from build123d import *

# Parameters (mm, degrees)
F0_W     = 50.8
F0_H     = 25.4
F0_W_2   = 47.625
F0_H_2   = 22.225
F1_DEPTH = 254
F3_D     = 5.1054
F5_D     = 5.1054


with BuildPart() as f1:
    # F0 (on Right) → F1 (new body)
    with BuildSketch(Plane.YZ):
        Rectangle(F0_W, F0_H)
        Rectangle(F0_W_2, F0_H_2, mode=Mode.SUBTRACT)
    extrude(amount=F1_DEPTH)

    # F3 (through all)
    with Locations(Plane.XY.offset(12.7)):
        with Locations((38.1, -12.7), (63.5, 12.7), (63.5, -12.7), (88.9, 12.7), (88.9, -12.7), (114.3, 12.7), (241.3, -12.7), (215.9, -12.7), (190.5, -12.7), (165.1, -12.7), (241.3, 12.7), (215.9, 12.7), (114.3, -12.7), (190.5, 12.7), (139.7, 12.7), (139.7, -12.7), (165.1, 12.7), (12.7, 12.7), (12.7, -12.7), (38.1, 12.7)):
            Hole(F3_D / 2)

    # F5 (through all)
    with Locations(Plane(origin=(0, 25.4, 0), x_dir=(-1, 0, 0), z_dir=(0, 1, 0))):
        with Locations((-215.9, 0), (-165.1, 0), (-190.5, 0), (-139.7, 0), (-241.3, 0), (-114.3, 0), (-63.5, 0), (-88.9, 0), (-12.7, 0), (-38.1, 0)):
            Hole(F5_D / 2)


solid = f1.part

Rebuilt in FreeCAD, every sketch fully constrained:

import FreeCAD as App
import Part
import Sketcher
from FreeCAD import Vector
Q = App.Units.Quantity

doc = App.newDocument("Part")
body = doc.addObject("PartDesign::Body", "Body")

sketch1 = doc.addObject("Sketcher::SketchObject", "Sketch")
body.addObject(sketch1)
sketch1.AttachmentSupport = (doc.YZ_Plane, [""])
sketch1.MapMode = "FlatFace"
sketch1.addGeometry(Part.LineSegment(Vector(-25, 13, 0), Vector(-25, -13, 0)), False)
sketch1.addGeometry(Part.LineSegment(Vector(-25, -13, 0), Vector(25, -13, 0)), False)
sketch1.addGeometry(Part.LineSegment(Vector(25, -13, 0), Vector(25, 13, 0)), False)
sketch1.addGeometry(Part.LineSegment(Vector(25, 13, 0), Vector(-25, 13, 0)), False)
sketch1.addGeometry(Part.LineSegment(Vector(24, -11, 0), Vector(-24, -11, 0)), False)
sketch1.addGeometry(Part.LineSegment(Vector(-24, -11, 0), Vector(-24, 11, 0)), False)
sketch1.addGeometry(Part.LineSegment(Vector(-24, 11, 0), Vector(24, 11, 0)), False)
sketch1.addGeometry(Part.LineSegment(Vector(24, 11, 0), Vector(24, -11, 0)), False)
sketch1.addConstraint(Sketcher.Constraint("Coincident", 0, 2, 1, 1))
sketch1.addConstraint(Sketcher.Constraint("Coincident", 1, 2, 2, 1))
sketch1.addConstraint(Sketcher.Constraint("Coincident", 2, 2, 3, 1))
sketch1.addConstraint(Sketcher.Constraint("Coincident", 3, 2, 0, 1))
sketch1.addConstraint(Sketcher.Constraint("Coincident", 4, 2, 5, 1))
sketch1.addConstraint(Sketcher.Constraint("Coincident", 5, 2, 6, 1))
sketch1.addConstraint(Sketcher.Constraint("Coincident", 6, 2, 7, 1))
sketch1.addConstraint(Sketcher.Constraint("Coincident", 7, 2, 4, 1))
sketch1.addConstraint(Sketcher.Constraint("Vertical", 0))
sketch1.addConstraint(Sketcher.Constraint("Horizontal", 1))
sketch1.addConstraint(Sketcher.Constraint("Vertical", 2))
sketch1.addConstraint(Sketcher.Constraint("Horizontal", 3))
sketch1.addConstraint(Sketcher.Constraint("Horizontal", 4))
sketch1.addConstraint(Sketcher.Constraint("Vertical", 5))
sketch1.addConstraint(Sketcher.Constraint("Horizontal", 6))
sketch1.addConstraint(Sketcher.Constraint("Vertical", 7))
sketch1.addConstraint(Sketcher.Constraint("Symmetric", 0, 2, 2, 2, -1, 1))
sketch1.addConstraint(Sketcher.Constraint("Symmetric", 4, 2, 6, 2, -1, 1))
sketch1.addConstraint(Sketcher.Constraint("DistanceX", 1, 1, 1, 2, Q("2 in")))
sketch1.addConstraint(Sketcher.Constraint("DistanceY", 0, 2, 0, 1, Q("1 in")))
sketch1.addConstraint(Sketcher.Constraint("DistanceX", 4, 2, 4, 1, Q("1.875 in")))
sketch1.addConstraint(Sketcher.Constraint("DistanceY", 5, 1, 5, 2, Q("0.875 in")))
pad1 = doc.addObject("PartDesign::Pad", "Pad")
body.addObject(pad1)
pad1.Profile = sketch1
pad1.Length = Q("10 in")

sketch2 = doc.addObject("Sketcher::SketchObject", "Sketch001")
body.addObject(sketch2)
sketch2.AttachmentSupport = (doc.XY_Plane, [""])
sketch2.MapMode = "FlatFace"
sketch2.AttachmentOffset = App.Placement(Vector(0, 0, 0.5 * 25.4), App.Rotation())
sketch2.addGeometry(Part.Circle(Vector(38.1, -12.7, 0), Vector(0, 0, 1), 2.6), False)
sketch2.addGeometry(Part.Circle(Vector(63.5, 12.7, 0), Vector(0, 0, 1), 2.6), False)
sketch2.addGeometry(Part.Circle(Vector(63.5, -12.7, 0), Vector(0, 0, 1), 2.6), False)
sketch2.addGeometry(Part.Circle(Vector(88.9, 12.7, 0), Vector(0, 0, 1), 2.6), False)
sketch2.addGeometry(Part.Circle(Vector(88.9, -12.7, 0), Vector(0, 0, 1), 2.6), False)
sketch2.addGeometry(Part.Circle(Vector(114.3, 12.7, 0), Vector(0, 0, 1), 2.6), False)
sketch2.addGeometry(Part.Circle(Vector(241.3, -12.7, 0), Vector(0, 0, 1), 2.6), False)
sketch2.addGeometry(Part.Circle(Vector(215.9, -12.7, 0), Vector(0, 0, 1), 2.6), False)
sketch2.addGeometry(Part.Circle(Vector(190.5, -12.7, 0), Vector(0, 0, 1), 2.6), False)
sketch2.addGeometry(Part.Circle(Vector(165.1, -12.7, 0), Vector(0, 0, 1), 2.6), False)
sketch2.addGeometry(Part.Circle(Vector(241.3, 12.7, 0), Vector(0, 0, 1), 2.6), False)
sketch2.addGeometry(Part.Circle(Vector(215.9, 12.7, 0), Vector(0, 0, 1), 2.6), False)
sketch2.addGeometry(Part.Circle(Vector(114.3, -12.7, 0), Vector(0, 0, 1), 2.6), False)
sketch2.addGeometry(Part.Circle(Vector(190.5, 12.7, 0), Vector(0, 0, 1), 2.6), False)
sketch2.addGeometry(Part.Circle(Vector(139.7, 12.7, 0), Vector(0, 0, 1), 2.6), False)
sketch2.addGeometry(Part.Circle(Vector(139.7, -12.7, 0), Vector(0, 0, 1), 2.6), False)
sketch2.addGeometry(Part.Circle(Vector(165.1, 12.7, 0), Vector(0, 0, 1), 2.6), False)
sketch2.addGeometry(Part.Circle(Vector(12.7, 12.7, 0), Vector(0, 0, 1), 2.6), False)
sketch2.addGeometry(Part.Circle(Vector(12.7, -12.7, 0), Vector(0, 0, 1), 2.6), False)
sketch2.addGeometry(Part.Circle(Vector(38.1, 12.7, 0), Vector(0, 0, 1), 2.6), False)
sketch2.addConstraint(Sketcher.Constraint("Equal", 0, 1))
sketch2.addConstraint(Sketcher.Constraint("Equal", 1, 2))
sketch2.addConstraint(Sketcher.Constraint("Equal", 2, 3))
sketch2.addConstraint(Sketcher.Constraint("Equal", 3, 4))
sketch2.addConstraint(Sketcher.Constraint("Equal", 4, 5))
sketch2.addConstraint(Sketcher.Constraint("Equal", 5, 6))
sketch2.addConstraint(Sketcher.Constraint("Equal", 6, 7))
sketch2.addConstraint(Sketcher.Constraint("Equal", 7, 8))
sketch2.addConstraint(Sketcher.Constraint("Equal", 8, 9))
sketch2.addConstraint(Sketcher.Constraint("Equal", 9, 10))
sketch2.addConstraint(Sketcher.Constraint("Equal", 10, 11))
sketch2.addConstraint(Sketcher.Constraint("Equal", 11, 12))
sketch2.addConstraint(Sketcher.Constraint("Equal", 12, 13))
sketch2.addConstraint(Sketcher.Constraint("Equal", 13, 14))
sketch2.addConstraint(Sketcher.Constraint("Equal", 14, 15))
sketch2.addConstraint(Sketcher.Constraint("Equal", 15, 16))
sketch2.addConstraint(Sketcher.Constraint("Equal", 16, 17))
sketch2.addConstraint(Sketcher.Constraint("Equal", 17, 18))
sketch2.addConstraint(Sketcher.Constraint("Equal", 18, 19))
sketch2.addConstraint(Sketcher.Constraint("Symmetric", 1, 3, 2, 3, -1))
sketch2.addConstraint(Sketcher.Constraint("Symmetric", 3, 3, 4, 3, -1))
sketch2.addConstraint(Sketcher.Constraint("Symmetric", 6, 3, 10, 3, -1))
sketch2.addConstraint(Sketcher.Constraint("Symmetric", 7, 3, 11, 3, -1))
sketch2.addConstraint(Sketcher.Constraint("Symmetric", 5, 3, 12, 3, -1))
sketch2.addConstraint(Sketcher.Constraint("Symmetric", 8, 3, 13, 3, -1))
sketch2.addConstraint(Sketcher.Constraint("Symmetric", 14, 3, 15, 3, -1))
sketch2.addConstraint(Sketcher.Constraint("Symmetric", 9, 3, 16, 3, -1))
sketch2.addConstraint(Sketcher.Constraint("Symmetric", 17, 3, 18, 3, -1))
sketch2.addConstraint(Sketcher.Constraint("Symmetric", 0, 3, 19, 3, -1))
sketch2.addConstraint(Sketcher.Constraint("Horizontal", 0, 3, 2, 3))
sketch2.addConstraint(Sketcher.Constraint("Horizontal", 1, 3, 3, 3))
sketch2.addConstraint(Sketcher.Constraint("Horizontal", 3, 3, 5, 3))
sketch2.addConstraint(Sketcher.Constraint("Horizontal", 4, 3, 6, 3))
sketch2.addConstraint(Sketcher.Constraint("Horizontal", 6, 3, 7, 3))
sketch2.addConstraint(Sketcher.Constraint("Horizontal", 7, 3, 8, 3))
sketch2.addConstraint(Sketcher.Constraint("Horizontal", 8, 3, 9, 3))
sketch2.addConstraint(Sketcher.Constraint("Horizontal", 13, 3, 14, 3))
sketch2.addConstraint(Sketcher.Constraint("Horizontal", 16, 3, 17, 3))
sketch2.addConstraint(Sketcher.Constraint("Diameter", 0, Q("0.201 in")))
sketch2.addConstraint(Sketcher.Constraint("DistanceX", 0, 3, 1, 3, Q("1 in")))
sketch2.addConstraint(Sketcher.Constraint("DistanceY", 0, 3, 1, 3, Q("1 in")))
sketch2.addConstraint(Sketcher.Constraint("DistanceX", 1, 3, 3, 3, Q("1 in")))
sketch2.addConstraint(Sketcher.Constraint("DistanceX", 3, 3, 5, 3, Q("1 in")))
sketch2.addConstraint(Sketcher.Constraint("DistanceX", 5, 3, 6, 3, Q("5 in")))
sketch2.addConstraint(Sketcher.Constraint("DistanceX", 7, 3, 6, 3, Q("1 in")))
sketch2.addConstraint(Sketcher.Constraint("DistanceX", 8, 3, 7, 3, Q("1 in")))
sketch2.addConstraint(Sketcher.Constraint("DistanceX", 9, 3, 8, 3, Q("1 in")))
sketch2.addConstraint(Sketcher.Constraint("DistanceX", 5, 3, 14, 3, Q("1 in")))
sketch2.addConstraint(Sketcher.Constraint("DistanceX", 17, 3, 0, 3, Q("1 in")))
sketch2.addConstraint(Sketcher.Constraint("DistanceX", -1, 1, 0, 3, Q("1.5 in")))
doc.recompute()
hole = doc.addObject("PartDesign::Hole", "Hole")
body.addObject(hole)
hole.Profile = sketch2
hole.ThreadType = "None"
hole.Diameter = Q("0.201 in")
hole.DepthType = "ThroughAll"

sketch3 = doc.addObject("Sketcher::SketchObject", "Sketch002")
body.addObject(sketch3)
sketch3.AttachmentSupport = (doc.XZ_Plane, [""])
sketch3.MapMode = "FlatFace"
sketch3.AttachmentOffset = App.Placement(Vector(0, 0, -1 * 25.4), App.Rotation())
sketch3.addGeometry(Part.Circle(Vector(215.9, 0, 0), Vector(0, 0, 1), 2.6), False)
sketch3.addGeometry(Part.Circle(Vector(165.1, 0, 0), Vector(0, 0, 1), 2.6), False)
sketch3.addGeometry(Part.Circle(Vector(190.5, 0, 0), Vector(0, 0, 1), 2.6), False)
sketch3.addGeometry(Part.Circle(Vector(139.7, 0, 0), Vector(0, 0, 1), 2.6), False)
sketch3.addGeometry(Part.Circle(Vector(241.3, 0, 0), Vector(0, 0, 1), 2.6), False)
sketch3.addGeometry(Part.Circle(Vector(114.3, 0, 0), Vector(0, 0, 1), 2.6), False)
sketch3.addGeometry(Part.Circle(Vector(63.5, 0, 0), Vector(0, 0, 1), 2.6), False)
sketch3.addGeometry(Part.Circle(Vector(88.9, 0, 0), Vector(0, 0, 1), 2.6), False)
sketch3.addGeometry(Part.Circle(Vector(12.7, 0, 0), Vector(0, 0, 1), 2.6), False)
sketch3.addGeometry(Part.Circle(Vector(38.1, 0, 0), Vector(0, 0, 1), 2.6), False)
sketch3.addConstraint(Sketcher.Constraint("Equal", 0, 1))
sketch3.addConstraint(Sketcher.Constraint("Equal", 1, 2))
sketch3.addConstraint(Sketcher.Constraint("Equal", 2, 3))
sketch3.addConstraint(Sketcher.Constraint("Equal", 3, 4))
sketch3.addConstraint(Sketcher.Constraint("Equal", 4, 5))
sketch3.addConstraint(Sketcher.Constraint("Equal", 5, 6))
sketch3.addConstraint(Sketcher.Constraint("Equal", 6, 7))
sketch3.addConstraint(Sketcher.Constraint("Equal", 7, 8))
sketch3.addConstraint(Sketcher.Constraint("Equal", 8, 9))
sketch3.addConstraint(Sketcher.Constraint("PointOnObject", 0, 3, -1))
sketch3.addConstraint(Sketcher.Constraint("PointOnObject", 1, 3, -1))
sketch3.addConstraint(Sketcher.Constraint("PointOnObject", 2, 3, -1))
sketch3.addConstraint(Sketcher.Constraint("PointOnObject", 3, 3, -1))
sketch3.addConstraint(Sketcher.Constraint("PointOnObject", 4, 3, -1))
sketch3.addConstraint(Sketcher.Constraint("PointOnObject", 5, 3, -1))
sketch3.addConstraint(Sketcher.Constraint("PointOnObject", 6, 3, -1))
sketch3.addConstraint(Sketcher.Constraint("PointOnObject", 7, 3, -1))
sketch3.addConstraint(Sketcher.Constraint("PointOnObject", 8, 3, -1))
sketch3.addConstraint(Sketcher.Constraint("PointOnObject", 9, 3, -1))
sketch3.addConstraint(Sketcher.Constraint("Diameter", 0, Q("0.201 in")))
sketch3.addConstraint(Sketcher.Constraint("DistanceX", 1, 3, 0, 3, Q("2 in")))
sketch3.addConstraint(Sketcher.Constraint("DistanceX", 2, 3, 0, 3, Q("1 in")))
sketch3.addConstraint(Sketcher.Constraint("DistanceX", 3, 3, 1, 3, Q("1 in")))
sketch3.addConstraint(Sketcher.Constraint("DistanceX", 0, 3, 4, 3, Q("1 in")))
sketch3.addConstraint(Sketcher.Constraint("DistanceX", 5, 3, 3, 3, Q("1 in")))
sketch3.addConstraint(Sketcher.Constraint("DistanceX", 6, 3, 5, 3, Q("2 in")))
sketch3.addConstraint(Sketcher.Constraint("DistanceX", 7, 3, 5, 3, Q("1 in")))
sketch3.addConstraint(Sketcher.Constraint("DistanceX", 8, 3, 6, 3, Q("2 in")))
sketch3.addConstraint(Sketcher.Constraint("DistanceX", 9, 3, 6, 3, Q("1 in")))
sketch3.addConstraint(Sketcher.Constraint("DistanceX", -1, 1, 0, 3, Q("8.5 in")))
doc.recompute()
hole2 = doc.addObject("PartDesign::Hole", "Hole001")
body.addObject(hole2)
hole2.Profile = sketch3
hole2.ThreadType = "None"
hole2.Diameter = Q("0.201 in")
hole2.DepthType = "ThroughAll"
hole2.Reversed = True

doc.recompute()
